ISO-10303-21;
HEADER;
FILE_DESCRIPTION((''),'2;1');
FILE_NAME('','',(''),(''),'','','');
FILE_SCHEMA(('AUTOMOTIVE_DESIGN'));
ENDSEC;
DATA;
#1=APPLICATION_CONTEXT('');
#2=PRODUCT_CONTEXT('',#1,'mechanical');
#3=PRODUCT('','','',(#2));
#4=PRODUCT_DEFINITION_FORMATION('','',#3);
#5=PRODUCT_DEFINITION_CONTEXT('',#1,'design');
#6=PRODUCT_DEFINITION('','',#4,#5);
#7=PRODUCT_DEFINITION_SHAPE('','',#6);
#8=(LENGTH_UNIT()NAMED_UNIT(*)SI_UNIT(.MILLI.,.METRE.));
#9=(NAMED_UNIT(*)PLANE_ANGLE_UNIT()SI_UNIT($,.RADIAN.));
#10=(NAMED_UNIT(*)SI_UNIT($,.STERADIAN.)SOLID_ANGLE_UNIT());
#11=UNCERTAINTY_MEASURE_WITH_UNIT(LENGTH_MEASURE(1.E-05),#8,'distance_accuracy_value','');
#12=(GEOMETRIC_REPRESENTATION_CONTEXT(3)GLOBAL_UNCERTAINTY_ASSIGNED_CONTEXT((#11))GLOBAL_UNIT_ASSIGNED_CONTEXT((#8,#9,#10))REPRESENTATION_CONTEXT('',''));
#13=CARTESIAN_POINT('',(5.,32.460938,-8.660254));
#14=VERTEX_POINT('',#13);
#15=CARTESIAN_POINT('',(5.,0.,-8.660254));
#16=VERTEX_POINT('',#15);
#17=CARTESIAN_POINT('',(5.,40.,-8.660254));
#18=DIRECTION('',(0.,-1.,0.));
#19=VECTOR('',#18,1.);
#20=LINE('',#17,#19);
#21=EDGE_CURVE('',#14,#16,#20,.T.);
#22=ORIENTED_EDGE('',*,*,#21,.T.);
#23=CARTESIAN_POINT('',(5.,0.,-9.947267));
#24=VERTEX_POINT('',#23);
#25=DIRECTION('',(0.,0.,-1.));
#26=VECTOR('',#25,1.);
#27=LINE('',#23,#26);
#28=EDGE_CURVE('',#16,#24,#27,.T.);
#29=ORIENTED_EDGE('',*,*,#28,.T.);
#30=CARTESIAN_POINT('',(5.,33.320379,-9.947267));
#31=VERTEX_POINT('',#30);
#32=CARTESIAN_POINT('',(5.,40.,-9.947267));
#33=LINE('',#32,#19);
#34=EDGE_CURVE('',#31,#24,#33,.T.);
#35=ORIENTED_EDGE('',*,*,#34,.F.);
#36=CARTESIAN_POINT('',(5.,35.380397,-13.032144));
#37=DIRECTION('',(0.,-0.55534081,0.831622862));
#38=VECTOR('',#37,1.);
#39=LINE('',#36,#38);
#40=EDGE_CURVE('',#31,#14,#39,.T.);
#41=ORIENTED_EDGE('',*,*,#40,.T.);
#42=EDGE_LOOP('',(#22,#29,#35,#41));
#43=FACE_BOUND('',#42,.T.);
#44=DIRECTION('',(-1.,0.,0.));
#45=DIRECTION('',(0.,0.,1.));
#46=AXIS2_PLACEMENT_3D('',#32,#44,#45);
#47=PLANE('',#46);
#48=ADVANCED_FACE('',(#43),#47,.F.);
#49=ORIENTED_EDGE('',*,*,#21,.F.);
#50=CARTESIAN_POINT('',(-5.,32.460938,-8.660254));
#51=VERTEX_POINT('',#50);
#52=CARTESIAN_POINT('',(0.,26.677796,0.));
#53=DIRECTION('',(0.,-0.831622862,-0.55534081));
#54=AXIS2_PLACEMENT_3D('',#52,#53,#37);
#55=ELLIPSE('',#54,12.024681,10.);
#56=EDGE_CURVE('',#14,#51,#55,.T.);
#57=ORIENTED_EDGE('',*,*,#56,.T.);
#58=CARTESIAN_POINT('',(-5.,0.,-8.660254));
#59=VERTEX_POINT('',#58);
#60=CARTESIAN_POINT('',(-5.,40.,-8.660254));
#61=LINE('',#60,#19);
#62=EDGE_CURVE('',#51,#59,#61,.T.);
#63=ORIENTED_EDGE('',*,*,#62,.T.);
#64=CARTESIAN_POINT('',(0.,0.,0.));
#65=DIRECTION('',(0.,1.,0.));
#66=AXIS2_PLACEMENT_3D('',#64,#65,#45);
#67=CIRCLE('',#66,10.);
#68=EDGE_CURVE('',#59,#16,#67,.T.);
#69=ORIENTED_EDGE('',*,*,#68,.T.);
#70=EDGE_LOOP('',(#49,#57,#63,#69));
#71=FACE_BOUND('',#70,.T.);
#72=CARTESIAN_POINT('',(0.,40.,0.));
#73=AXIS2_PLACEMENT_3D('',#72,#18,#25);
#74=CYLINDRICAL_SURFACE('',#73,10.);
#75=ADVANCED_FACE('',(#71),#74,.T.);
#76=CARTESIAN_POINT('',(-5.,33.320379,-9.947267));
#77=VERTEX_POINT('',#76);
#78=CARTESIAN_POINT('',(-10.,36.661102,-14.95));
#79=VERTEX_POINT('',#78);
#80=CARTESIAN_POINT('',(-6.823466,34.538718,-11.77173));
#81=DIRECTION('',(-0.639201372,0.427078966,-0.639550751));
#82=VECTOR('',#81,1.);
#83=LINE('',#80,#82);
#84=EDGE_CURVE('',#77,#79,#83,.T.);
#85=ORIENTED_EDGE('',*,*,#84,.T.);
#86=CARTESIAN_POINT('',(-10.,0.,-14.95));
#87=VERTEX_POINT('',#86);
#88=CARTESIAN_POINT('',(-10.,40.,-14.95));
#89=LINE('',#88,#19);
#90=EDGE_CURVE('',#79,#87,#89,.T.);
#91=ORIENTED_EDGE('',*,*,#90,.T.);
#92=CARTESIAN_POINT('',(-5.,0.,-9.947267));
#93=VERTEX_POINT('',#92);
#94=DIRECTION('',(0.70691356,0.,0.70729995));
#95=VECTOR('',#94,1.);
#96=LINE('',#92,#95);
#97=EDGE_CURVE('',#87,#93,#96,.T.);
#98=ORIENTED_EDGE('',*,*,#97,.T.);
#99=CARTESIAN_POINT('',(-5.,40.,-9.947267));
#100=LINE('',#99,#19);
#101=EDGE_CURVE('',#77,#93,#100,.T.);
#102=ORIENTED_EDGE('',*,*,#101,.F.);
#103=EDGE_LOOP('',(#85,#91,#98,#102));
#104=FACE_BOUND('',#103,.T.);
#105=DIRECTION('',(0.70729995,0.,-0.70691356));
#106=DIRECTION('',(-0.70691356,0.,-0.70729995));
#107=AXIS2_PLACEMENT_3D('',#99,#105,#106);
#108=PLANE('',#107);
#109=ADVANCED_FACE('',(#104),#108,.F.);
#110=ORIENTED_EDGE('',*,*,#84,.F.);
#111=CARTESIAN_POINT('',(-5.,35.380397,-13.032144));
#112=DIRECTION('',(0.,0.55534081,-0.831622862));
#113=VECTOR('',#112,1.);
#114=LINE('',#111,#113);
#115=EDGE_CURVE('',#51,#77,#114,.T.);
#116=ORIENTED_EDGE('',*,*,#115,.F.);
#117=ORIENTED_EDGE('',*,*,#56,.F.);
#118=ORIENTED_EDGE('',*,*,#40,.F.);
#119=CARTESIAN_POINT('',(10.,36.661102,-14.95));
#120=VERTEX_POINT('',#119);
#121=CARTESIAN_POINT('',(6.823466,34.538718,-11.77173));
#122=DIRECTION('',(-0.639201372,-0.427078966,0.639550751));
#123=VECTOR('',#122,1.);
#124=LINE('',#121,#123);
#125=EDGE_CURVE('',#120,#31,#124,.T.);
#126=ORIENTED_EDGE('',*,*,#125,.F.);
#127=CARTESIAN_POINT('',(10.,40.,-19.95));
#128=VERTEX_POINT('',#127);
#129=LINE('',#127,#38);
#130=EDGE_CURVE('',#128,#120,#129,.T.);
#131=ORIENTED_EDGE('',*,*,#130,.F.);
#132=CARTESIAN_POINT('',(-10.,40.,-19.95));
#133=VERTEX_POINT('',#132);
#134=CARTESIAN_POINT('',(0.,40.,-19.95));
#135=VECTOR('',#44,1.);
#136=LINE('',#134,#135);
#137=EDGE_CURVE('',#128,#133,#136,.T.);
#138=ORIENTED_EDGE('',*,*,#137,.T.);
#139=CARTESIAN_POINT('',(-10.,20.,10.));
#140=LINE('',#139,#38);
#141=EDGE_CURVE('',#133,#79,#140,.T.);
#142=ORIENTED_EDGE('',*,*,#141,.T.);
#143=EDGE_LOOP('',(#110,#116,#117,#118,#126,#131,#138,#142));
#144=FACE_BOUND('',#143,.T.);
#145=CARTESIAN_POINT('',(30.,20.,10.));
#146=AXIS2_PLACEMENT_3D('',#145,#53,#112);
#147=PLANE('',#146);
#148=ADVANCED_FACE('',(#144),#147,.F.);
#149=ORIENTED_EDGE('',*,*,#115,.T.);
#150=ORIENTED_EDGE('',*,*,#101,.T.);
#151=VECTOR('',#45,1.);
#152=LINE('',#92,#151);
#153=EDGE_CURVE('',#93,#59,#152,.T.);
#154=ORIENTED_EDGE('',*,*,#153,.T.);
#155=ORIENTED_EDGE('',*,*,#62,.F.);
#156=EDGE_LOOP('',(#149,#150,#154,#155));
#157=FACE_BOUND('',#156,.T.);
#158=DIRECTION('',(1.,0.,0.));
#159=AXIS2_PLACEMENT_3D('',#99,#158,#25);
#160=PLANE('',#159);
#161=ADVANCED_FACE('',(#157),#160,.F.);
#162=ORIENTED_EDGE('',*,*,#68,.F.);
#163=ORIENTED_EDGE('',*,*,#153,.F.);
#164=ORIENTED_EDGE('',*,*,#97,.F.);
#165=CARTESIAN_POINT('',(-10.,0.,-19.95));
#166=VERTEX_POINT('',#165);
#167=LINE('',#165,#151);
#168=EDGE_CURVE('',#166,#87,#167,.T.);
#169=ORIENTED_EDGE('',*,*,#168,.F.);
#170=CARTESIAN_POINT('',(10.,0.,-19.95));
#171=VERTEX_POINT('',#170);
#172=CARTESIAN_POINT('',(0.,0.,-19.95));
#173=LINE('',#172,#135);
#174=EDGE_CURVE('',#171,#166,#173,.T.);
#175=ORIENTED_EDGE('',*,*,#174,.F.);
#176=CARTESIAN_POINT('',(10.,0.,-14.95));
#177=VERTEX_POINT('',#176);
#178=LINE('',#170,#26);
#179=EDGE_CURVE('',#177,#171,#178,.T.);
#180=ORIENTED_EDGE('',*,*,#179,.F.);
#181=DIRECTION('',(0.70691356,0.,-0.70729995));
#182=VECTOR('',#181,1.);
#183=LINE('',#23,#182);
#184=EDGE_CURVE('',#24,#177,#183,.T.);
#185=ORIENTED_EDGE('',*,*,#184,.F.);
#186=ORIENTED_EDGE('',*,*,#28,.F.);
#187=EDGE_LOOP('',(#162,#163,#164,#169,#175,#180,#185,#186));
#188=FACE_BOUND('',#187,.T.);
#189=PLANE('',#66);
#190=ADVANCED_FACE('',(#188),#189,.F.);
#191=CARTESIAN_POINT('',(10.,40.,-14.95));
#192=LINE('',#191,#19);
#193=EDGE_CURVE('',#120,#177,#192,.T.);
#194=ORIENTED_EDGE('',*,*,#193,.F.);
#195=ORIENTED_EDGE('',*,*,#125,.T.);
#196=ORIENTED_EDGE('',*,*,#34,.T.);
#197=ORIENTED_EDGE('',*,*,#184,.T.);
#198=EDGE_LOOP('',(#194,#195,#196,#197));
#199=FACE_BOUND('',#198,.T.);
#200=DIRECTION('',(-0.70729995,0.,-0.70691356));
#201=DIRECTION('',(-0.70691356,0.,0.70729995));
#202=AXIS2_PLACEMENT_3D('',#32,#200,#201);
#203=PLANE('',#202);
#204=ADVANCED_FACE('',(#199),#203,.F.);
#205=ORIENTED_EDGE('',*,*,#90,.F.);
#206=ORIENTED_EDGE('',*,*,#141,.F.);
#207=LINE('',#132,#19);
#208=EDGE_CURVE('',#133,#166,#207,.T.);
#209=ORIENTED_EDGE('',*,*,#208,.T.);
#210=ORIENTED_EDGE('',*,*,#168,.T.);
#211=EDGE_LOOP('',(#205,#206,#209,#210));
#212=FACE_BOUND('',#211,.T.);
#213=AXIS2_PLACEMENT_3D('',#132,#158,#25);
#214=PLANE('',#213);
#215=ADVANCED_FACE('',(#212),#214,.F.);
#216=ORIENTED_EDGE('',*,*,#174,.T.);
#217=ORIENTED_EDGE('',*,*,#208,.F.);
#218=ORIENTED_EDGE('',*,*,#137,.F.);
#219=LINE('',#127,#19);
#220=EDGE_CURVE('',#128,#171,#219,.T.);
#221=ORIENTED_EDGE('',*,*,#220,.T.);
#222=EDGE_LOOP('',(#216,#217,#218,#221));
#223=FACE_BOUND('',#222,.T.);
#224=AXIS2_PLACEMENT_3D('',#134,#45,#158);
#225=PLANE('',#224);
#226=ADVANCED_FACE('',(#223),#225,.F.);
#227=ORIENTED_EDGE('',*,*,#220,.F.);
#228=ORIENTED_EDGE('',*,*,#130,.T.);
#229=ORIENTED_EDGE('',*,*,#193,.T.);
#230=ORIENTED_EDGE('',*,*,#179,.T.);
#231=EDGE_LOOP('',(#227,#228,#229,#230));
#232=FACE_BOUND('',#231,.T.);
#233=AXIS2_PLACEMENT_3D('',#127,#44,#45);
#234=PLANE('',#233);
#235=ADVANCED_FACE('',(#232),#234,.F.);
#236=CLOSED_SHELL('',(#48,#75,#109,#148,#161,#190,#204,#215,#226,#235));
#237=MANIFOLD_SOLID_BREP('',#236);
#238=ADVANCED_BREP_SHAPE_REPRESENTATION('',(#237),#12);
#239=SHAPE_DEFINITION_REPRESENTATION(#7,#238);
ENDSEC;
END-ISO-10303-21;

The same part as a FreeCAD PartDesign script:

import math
import FreeCAD as App
import Part
import Sketcher
from FreeCAD import Vector
Q = App.Units.Quantity


def add_polygon(sketch, points):
    """Adds a closed chain of lines whose ends are joined by coincident constraints."""
    first, n = sketch.GeometryCount, len(points)
    for a, b in zip(points, points[1:] + points[:1]):
        sketch.addGeometry(Part.LineSegment(App.Vector(*a, 0), App.Vector(*b, 0)), False)
    for i in range(n):
        sketch.addConstraint(Sketcher.Constraint("Coincident", first + i, 2, first + (i + 1) % n, 1))

doc = App.newDocument("Part")
body = doc.addObject("PartDesign::Body", "Body")

sketch1 = body.newObject("Sketcher::SketchObject", "Sketch")
sketch1.AttachmentSupport = (doc.getObject("XZ_Plane"), [""])
sketch1.MapMode = "FlatFace"
sketch1.addGeometry([
    Part.LineSegment(Vector(10, -14.95, 0), Vector(10, -19.95, 0)),
    Part.LineSegment(Vector(10, -19.95, 0), Vector(-10, -19.95, 0)),
    Part.LineSegment(Vector(-10, -19.95, 0), Vector(-10, -14.95, 0)),
    Part.LineSegment(Vector(-10, -14.95, 0), Vector(-5, -9.947267, 0)),
    Part.LineSegment(Vector(-5, -9.947267, 0), Vector(-5, -8.660254, 0)),
    Part.ArcOfCircle(Part.Circle(Vector(0, 0, 0), Vector(0, 0, 1), 10), math.radians(-60), math.radians(240)),
    Part.LineSegment(Vector(5, -8.660254, 0), Vector(5, -9.947267, 0)),
    Part.LineSegment(Vector(5, -9.947267, 0), Vector(10, -14.95, 0)),
], False)
sketch1.addConstraint([
    Sketcher.Constraint("Coincident", 0, 2, 1, 1),
    Sketcher.Constraint("Coincident", 1, 2, 2, 1),
    Sketcher.Constraint("Coincident", 2, 2, 3, 1),
    Sketcher.Constraint("Coincident", 3, 2, 4, 1),
    Sketcher.Constraint("Coincident", 4, 2, 5, 2),
    Sketcher.Constraint("Coincident", 5, 1, 6, 1),
    Sketcher.Constraint("Coincident", 6, 2, 7, 1),
    Sketcher.Constraint("Coincident", 7, 2, 0, 1),
    Sketcher.Constraint("Vertical", 0),
    Sketcher.Constraint("Horizontal", 1),
    Sketcher.Constraint("Vertical", 2),
    Sketcher.Constraint("Vertical", 4),
    Sketcher.Constraint("Vertical", 6),
    Sketcher.Constraint("Coincident", 5, 3, -1, 1),
    Sketcher.Constraint("Symmetric", 3, 2, 6, 2, -2),
    Sketcher.Constraint("Symmetric", 2, 2, 7, 2, -2),
    Sketcher.Constraint("Radius", 5, Q("10 mm")),
    Sketcher.Constraint("DistanceX", 1, 2, 1, 1, Q("20 mm")),
    Sketcher.Constraint("DistanceY", 0, 2, 0, 1, Q("5 mm")),
    Sketcher.Constraint("DistanceX", 3, 2, -1, 1, Q("5 mm")),
    Sketcher.Constraint("DistanceY", 0, 2, -1, 1, Q("19.95 mm")),
    Sketcher.Constraint("Distance", 3, Q("7.073001 mm")),
])
pad1 = body.newObject("PartDesign::Pad", "Pad")
pad1.Profile = sketch1
pad1.Length = 40
pad1.Reversed = True

sketch2 = body.newObject("Sketcher::SketchObject", "Sketch001")
sketch2.AttachmentSupport = (doc.getObject("YZ_Plane"), [""])
sketch2.MapMode = "FlatFace"
sketch2.AttachmentOffset = App.Placement(Vector(0, 0, -10), App.Rotation())
add_polygon(sketch2, [(40, -19.95), (20, 10), (40, 10)])
sketch2.addConstraint([
    Sketcher.Constraint("Horizontal", 1),
    Sketcher.Constraint("Vertical", 2),
    Sketcher.Constraint("DistanceX", 1, 1, 1, 2, Q("20 mm")),
    Sketcher.Constraint("DistanceX", -1, 1, 0, 2, Q("20 mm")),
    Sketcher.Constraint("DistanceY", -1, 1, 0, 2, Q("10 mm")),
    Sketcher.Constraint("DistanceY", 2, 2, 2, 1, Q("29.95 mm")),
])
pocket1 = body.newObject("PartDesign::Pocket", "Pocket")
pocket1.Profile = sketch2
pocket1.Length = 40
pocket1.Reversed = True

doc.recompute()
